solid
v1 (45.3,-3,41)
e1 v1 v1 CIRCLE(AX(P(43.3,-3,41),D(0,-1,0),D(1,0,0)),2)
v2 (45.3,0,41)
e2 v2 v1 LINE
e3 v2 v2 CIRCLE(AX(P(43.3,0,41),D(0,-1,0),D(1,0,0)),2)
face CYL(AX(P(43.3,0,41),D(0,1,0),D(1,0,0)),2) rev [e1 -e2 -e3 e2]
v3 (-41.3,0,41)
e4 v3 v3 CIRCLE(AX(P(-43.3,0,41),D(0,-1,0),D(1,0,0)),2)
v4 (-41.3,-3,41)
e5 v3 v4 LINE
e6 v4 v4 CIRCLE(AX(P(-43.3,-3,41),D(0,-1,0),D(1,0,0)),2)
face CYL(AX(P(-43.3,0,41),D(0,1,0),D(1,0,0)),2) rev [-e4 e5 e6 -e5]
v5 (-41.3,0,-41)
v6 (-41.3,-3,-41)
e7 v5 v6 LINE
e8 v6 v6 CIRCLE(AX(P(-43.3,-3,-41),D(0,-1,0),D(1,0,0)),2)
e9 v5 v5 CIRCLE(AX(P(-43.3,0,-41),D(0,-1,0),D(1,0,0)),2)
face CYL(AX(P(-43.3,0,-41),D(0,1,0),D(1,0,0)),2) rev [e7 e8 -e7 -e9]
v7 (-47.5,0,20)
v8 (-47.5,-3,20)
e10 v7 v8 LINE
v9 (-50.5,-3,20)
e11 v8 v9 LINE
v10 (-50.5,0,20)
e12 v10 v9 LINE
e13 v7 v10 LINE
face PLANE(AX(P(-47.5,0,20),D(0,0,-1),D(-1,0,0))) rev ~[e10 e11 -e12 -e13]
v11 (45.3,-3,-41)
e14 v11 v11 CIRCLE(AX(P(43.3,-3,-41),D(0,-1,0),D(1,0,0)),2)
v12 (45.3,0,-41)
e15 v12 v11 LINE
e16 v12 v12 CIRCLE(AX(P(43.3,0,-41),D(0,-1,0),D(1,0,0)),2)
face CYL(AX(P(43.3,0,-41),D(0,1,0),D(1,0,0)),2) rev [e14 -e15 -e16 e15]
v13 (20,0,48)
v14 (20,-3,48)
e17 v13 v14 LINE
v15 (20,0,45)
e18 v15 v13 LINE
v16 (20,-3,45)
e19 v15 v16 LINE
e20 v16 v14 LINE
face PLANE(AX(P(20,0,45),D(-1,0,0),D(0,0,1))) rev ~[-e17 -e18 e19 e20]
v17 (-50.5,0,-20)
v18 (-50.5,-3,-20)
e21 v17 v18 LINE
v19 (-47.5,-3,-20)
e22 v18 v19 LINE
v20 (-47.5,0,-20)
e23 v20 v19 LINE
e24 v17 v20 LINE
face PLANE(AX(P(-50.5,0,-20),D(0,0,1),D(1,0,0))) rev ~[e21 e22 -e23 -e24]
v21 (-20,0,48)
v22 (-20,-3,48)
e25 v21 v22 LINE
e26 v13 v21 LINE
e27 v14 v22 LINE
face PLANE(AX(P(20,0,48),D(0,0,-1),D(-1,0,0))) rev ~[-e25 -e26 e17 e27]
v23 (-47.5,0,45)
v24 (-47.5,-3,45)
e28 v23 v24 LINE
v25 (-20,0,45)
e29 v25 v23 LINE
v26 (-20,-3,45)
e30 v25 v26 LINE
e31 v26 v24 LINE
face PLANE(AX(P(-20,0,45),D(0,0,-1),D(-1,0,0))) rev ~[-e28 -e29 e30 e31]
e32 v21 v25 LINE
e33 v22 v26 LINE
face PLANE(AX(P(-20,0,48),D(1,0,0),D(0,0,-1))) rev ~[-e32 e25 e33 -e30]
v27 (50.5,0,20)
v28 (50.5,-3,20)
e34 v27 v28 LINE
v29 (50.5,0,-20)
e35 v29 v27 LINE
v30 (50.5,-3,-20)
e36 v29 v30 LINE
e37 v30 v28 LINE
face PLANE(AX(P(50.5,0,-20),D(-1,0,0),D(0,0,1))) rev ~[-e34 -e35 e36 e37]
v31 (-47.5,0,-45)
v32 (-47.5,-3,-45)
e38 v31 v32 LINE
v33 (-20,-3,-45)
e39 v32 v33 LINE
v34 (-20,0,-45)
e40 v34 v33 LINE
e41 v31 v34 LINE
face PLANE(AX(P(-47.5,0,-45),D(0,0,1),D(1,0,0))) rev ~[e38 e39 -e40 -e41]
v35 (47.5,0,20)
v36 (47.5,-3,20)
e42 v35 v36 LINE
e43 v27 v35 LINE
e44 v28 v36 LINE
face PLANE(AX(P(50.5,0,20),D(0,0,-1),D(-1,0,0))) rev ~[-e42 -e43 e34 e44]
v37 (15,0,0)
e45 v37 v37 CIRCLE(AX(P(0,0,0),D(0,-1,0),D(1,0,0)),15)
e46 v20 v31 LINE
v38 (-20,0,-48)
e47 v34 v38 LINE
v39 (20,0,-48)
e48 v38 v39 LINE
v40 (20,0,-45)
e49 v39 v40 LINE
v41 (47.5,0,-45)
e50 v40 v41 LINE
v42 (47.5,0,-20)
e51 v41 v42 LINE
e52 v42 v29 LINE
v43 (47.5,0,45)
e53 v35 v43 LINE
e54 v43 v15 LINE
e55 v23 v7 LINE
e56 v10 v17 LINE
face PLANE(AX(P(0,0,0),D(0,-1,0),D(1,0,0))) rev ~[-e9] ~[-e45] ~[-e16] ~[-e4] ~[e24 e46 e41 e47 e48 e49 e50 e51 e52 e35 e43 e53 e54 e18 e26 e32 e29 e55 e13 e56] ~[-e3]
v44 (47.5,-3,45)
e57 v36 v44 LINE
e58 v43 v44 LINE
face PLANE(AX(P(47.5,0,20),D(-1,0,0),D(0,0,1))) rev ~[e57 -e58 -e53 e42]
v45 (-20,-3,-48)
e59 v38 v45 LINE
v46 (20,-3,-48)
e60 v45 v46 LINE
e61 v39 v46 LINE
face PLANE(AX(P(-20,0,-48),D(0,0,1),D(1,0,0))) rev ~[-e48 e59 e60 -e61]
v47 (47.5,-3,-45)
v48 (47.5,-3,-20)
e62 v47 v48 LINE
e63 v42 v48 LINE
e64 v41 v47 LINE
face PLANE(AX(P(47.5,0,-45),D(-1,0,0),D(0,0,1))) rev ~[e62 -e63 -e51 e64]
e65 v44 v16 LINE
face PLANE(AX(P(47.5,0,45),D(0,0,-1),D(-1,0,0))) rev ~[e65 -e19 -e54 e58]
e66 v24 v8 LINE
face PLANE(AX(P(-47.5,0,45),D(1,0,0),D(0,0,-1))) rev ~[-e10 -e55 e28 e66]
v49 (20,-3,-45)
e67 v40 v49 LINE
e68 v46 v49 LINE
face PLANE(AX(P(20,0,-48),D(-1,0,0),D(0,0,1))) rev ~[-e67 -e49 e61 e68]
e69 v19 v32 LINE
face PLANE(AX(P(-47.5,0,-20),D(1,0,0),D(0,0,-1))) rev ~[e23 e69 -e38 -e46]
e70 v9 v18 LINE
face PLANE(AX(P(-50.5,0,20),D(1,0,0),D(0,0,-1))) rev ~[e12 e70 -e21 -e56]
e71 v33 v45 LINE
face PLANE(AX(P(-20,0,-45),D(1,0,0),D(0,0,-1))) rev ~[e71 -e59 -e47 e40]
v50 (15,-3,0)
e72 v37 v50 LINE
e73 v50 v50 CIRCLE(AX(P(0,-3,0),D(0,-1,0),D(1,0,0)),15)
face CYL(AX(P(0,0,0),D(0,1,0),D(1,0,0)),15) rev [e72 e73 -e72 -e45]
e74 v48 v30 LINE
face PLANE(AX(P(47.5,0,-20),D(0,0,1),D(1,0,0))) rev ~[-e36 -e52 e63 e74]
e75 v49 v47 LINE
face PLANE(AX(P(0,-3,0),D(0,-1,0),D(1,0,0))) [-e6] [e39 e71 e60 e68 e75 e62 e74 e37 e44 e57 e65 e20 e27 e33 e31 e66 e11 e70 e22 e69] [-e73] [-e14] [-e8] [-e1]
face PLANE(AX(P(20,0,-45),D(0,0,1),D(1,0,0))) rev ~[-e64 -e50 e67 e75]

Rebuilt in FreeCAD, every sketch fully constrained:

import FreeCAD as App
import Part
import Sketcher
Q = App.Units.Quantity


def add_polygon(sketch, points):
    """Adds a closed chain of lines whose ends are joined by coincident constraints."""
    first, n = sketch.GeometryCount, len(points)
    for a, b in zip(points, points[1:] + points[:1]):
        sketch.addGeometry(Part.LineSegment(App.Vector(*a, 0), App.Vector(*b, 0)), False)
    for i in range(n):
        sketch.addConstraint(Sketcher.Constraint("Coincident", first + i, 2, first + (i + 1) % n, 1))

doc = App.newDocument("Part")
body = doc.addObject("PartDesign::Body", "Body")

# Sketch on XZ plane
sketch1 = body.newObject("Sketcher::SketchObject", "Sketch")
sketch1.AttachmentSupport = (doc.getObject("XZ_Plane"), [""])
sketch1.MapMode = "FlatFace"
add_polygon(sketch1, [(-50.5, 20), (-50.5, -20), (-47.5, -20), (-47.5, -45), (-20, -45), (-20, -48), (20, -48), (20, -45), (47.5, -45), (47.5, -20), (50.5, -20), (50.5, 20), (47.5, 20), (47.5, 45), (20, 45), (20, 48), (-20, 48), (-20, 45), (-47.5, 45), (-47.5, 20)])  # lines 0-19
sketch1.addGeometry(Part.Circle(App.Vector(-43.3, -41, 0), App.Vector(0, 0, 1), 2), False)  # 20
sketch1.addGeometry(Part.Circle(App.Vector(43.3, -41, 0), App.Vector(0, 0, 1), 2), False)  # 21
sketch1.addGeometry(Part.Circle(App.Vector(-43.3, 41, 0), App.Vector(0, 0, 1), 2), False)  # 22
sketch1.addGeometry(Part.Circle(App.Vector(0, 0, 0), App.Vector(0, 0, 1), 15), False)  # 23
sketch1.addGeometry(Part.Circle(App.Vector(43.3, 41, 0), App.Vector(0, 0, 1), 2), False)  # 24
sketch1.addConstraint(Sketcher.Constraint("Vertical", 0))
sketch1.addConstraint(Sketcher.Constraint("Horizontal", 1))
sketch1.addConstraint(Sketcher.Constraint("Vertical", 2))
sketch1.addConstraint(Sketcher.Constraint("Horizontal", 3))
sketch1.addConstraint(Sketcher.Constraint("Vertical", 4))
sketch1.addConstraint(Sketcher.Constraint("Horizontal", 5))
sketch1.addConstraint(Sketcher.Constraint("Vertical", 6))
sketch1.addConstraint(Sketcher.Constraint("Horizontal", 7))
sketch1.addConstraint(Sketcher.Constraint("Vertical", 8))
sketch1.addConstraint(Sketcher.Constraint("Horizontal", 9))
sketch1.addConstraint(Sketcher.Constraint("Vertical", 10))
sketch1.addConstraint(Sketcher.Constraint("Horizontal", 11))
sketch1.addConstraint(Sketcher.Constraint("Vertical", 12))
sketch1.addConstraint(Sketcher.Constraint("Horizontal", 13))
sketch1.addConstraint(Sketcher.Constraint("Vertical", 14))
sketch1.addConstraint(Sketcher.Constraint("Horizontal", 15))
sketch1.addConstraint(Sketcher.Constraint("Vertical", 16))
sketch1.addConstraint(Sketcher.Constraint("Horizontal", 17))
sketch1.addConstraint(Sketcher.Constraint("Vertical", 18))
sketch1.addConstraint(Sketcher.Constraint("Horizontal", 19))
sketch1.addConstraint(Sketcher.Constraint("Coincident", 23, 3, -1, 1))
sketch1.addConstraint(Sketcher.Constraint("Equal", 20, 21))
sketch1.addConstraint(Sketcher.Constraint("Equal", 21, 22))
sketch1.addConstraint(Sketcher.Constraint("Equal", 22, 24))
sketch1.addConstraint(Sketcher.Constraint("Symmetric", 21, 3, 22, 3, -1, 1))
sketch1.addConstraint(Sketcher.Constraint("Symmetric", 20, 3, 24, 3, -1, 1))
sketch1.addConstraint(Sketcher.Constraint("Symmetric", 0, 2, 10, 2, -1, 1))
sketch1.addConstraint(Sketcher.Constraint("Symmetric", 2, 2, 12, 2, -1, 1))
sketch1.addConstraint(Sketcher.Constraint("Symmetric", 4, 2, 14, 2, -1, 1))
sketch1.addConstraint(Sketcher.Constraint("Symmetric", 6, 2, 16, 2, -1, 1))
sketch1.addConstraint(Sketcher.Constraint("Symmetric", 8, 2, 18, 2, -1, 1))
sketch1.addConstraint(Sketcher.Constraint("Symmetric", 20, 3, 21, 3, -2))
sketch1.addConstraint(Sketcher.Constraint("Symmetric", 3, 2, 6, 2, -2))
sketch1.addConstraint(Sketcher.Constraint("Symmetric", 1, 2, 8, 2, -2))
sketch1.addConstraint(Sketcher.Constraint("Equal", 15, 0))
sketch1.addConstraint(Sketcher.Constraint("Equal", 19, 4))
sketch1.addConstraint(Sketcher.Constraint("Diameter", 20, Q("4 mm")))
sketch1.addConstraint(Sketcher.Constraint("Diameter", 23, Q("30 mm")))
sketch1.addConstraint(Sketcher.Constraint("DistanceX", 1, 1, 1, 2, Q("3 mm")))
sketch1.addConstraint(Sketcher.Constraint("DistanceX", 5, 1, 5, 2, Q("40 mm")))
sketch1.addConstraint(Sketcher.Constraint("DistanceY", 2, 2, 2, 1, Q("25 mm")))
sketch1.addConstraint(Sketcher.Constraint("DistanceX", 3, 1, 3, 2, Q("27.5 mm")))
sketch1.addConstraint(Sketcher.Constraint("DistanceY", 20, 3, -1, 1, Q("41 mm")))
sketch1.addConstraint(Sketcher.Constraint("DistanceX", 20, 3, -1, 1, Q("43.3 mm")))
pad1 = body.newObject("PartDesign::Pad", "Pad")
pad1.Profile = sketch1
pad1.Length = 3

doc.recompute()
